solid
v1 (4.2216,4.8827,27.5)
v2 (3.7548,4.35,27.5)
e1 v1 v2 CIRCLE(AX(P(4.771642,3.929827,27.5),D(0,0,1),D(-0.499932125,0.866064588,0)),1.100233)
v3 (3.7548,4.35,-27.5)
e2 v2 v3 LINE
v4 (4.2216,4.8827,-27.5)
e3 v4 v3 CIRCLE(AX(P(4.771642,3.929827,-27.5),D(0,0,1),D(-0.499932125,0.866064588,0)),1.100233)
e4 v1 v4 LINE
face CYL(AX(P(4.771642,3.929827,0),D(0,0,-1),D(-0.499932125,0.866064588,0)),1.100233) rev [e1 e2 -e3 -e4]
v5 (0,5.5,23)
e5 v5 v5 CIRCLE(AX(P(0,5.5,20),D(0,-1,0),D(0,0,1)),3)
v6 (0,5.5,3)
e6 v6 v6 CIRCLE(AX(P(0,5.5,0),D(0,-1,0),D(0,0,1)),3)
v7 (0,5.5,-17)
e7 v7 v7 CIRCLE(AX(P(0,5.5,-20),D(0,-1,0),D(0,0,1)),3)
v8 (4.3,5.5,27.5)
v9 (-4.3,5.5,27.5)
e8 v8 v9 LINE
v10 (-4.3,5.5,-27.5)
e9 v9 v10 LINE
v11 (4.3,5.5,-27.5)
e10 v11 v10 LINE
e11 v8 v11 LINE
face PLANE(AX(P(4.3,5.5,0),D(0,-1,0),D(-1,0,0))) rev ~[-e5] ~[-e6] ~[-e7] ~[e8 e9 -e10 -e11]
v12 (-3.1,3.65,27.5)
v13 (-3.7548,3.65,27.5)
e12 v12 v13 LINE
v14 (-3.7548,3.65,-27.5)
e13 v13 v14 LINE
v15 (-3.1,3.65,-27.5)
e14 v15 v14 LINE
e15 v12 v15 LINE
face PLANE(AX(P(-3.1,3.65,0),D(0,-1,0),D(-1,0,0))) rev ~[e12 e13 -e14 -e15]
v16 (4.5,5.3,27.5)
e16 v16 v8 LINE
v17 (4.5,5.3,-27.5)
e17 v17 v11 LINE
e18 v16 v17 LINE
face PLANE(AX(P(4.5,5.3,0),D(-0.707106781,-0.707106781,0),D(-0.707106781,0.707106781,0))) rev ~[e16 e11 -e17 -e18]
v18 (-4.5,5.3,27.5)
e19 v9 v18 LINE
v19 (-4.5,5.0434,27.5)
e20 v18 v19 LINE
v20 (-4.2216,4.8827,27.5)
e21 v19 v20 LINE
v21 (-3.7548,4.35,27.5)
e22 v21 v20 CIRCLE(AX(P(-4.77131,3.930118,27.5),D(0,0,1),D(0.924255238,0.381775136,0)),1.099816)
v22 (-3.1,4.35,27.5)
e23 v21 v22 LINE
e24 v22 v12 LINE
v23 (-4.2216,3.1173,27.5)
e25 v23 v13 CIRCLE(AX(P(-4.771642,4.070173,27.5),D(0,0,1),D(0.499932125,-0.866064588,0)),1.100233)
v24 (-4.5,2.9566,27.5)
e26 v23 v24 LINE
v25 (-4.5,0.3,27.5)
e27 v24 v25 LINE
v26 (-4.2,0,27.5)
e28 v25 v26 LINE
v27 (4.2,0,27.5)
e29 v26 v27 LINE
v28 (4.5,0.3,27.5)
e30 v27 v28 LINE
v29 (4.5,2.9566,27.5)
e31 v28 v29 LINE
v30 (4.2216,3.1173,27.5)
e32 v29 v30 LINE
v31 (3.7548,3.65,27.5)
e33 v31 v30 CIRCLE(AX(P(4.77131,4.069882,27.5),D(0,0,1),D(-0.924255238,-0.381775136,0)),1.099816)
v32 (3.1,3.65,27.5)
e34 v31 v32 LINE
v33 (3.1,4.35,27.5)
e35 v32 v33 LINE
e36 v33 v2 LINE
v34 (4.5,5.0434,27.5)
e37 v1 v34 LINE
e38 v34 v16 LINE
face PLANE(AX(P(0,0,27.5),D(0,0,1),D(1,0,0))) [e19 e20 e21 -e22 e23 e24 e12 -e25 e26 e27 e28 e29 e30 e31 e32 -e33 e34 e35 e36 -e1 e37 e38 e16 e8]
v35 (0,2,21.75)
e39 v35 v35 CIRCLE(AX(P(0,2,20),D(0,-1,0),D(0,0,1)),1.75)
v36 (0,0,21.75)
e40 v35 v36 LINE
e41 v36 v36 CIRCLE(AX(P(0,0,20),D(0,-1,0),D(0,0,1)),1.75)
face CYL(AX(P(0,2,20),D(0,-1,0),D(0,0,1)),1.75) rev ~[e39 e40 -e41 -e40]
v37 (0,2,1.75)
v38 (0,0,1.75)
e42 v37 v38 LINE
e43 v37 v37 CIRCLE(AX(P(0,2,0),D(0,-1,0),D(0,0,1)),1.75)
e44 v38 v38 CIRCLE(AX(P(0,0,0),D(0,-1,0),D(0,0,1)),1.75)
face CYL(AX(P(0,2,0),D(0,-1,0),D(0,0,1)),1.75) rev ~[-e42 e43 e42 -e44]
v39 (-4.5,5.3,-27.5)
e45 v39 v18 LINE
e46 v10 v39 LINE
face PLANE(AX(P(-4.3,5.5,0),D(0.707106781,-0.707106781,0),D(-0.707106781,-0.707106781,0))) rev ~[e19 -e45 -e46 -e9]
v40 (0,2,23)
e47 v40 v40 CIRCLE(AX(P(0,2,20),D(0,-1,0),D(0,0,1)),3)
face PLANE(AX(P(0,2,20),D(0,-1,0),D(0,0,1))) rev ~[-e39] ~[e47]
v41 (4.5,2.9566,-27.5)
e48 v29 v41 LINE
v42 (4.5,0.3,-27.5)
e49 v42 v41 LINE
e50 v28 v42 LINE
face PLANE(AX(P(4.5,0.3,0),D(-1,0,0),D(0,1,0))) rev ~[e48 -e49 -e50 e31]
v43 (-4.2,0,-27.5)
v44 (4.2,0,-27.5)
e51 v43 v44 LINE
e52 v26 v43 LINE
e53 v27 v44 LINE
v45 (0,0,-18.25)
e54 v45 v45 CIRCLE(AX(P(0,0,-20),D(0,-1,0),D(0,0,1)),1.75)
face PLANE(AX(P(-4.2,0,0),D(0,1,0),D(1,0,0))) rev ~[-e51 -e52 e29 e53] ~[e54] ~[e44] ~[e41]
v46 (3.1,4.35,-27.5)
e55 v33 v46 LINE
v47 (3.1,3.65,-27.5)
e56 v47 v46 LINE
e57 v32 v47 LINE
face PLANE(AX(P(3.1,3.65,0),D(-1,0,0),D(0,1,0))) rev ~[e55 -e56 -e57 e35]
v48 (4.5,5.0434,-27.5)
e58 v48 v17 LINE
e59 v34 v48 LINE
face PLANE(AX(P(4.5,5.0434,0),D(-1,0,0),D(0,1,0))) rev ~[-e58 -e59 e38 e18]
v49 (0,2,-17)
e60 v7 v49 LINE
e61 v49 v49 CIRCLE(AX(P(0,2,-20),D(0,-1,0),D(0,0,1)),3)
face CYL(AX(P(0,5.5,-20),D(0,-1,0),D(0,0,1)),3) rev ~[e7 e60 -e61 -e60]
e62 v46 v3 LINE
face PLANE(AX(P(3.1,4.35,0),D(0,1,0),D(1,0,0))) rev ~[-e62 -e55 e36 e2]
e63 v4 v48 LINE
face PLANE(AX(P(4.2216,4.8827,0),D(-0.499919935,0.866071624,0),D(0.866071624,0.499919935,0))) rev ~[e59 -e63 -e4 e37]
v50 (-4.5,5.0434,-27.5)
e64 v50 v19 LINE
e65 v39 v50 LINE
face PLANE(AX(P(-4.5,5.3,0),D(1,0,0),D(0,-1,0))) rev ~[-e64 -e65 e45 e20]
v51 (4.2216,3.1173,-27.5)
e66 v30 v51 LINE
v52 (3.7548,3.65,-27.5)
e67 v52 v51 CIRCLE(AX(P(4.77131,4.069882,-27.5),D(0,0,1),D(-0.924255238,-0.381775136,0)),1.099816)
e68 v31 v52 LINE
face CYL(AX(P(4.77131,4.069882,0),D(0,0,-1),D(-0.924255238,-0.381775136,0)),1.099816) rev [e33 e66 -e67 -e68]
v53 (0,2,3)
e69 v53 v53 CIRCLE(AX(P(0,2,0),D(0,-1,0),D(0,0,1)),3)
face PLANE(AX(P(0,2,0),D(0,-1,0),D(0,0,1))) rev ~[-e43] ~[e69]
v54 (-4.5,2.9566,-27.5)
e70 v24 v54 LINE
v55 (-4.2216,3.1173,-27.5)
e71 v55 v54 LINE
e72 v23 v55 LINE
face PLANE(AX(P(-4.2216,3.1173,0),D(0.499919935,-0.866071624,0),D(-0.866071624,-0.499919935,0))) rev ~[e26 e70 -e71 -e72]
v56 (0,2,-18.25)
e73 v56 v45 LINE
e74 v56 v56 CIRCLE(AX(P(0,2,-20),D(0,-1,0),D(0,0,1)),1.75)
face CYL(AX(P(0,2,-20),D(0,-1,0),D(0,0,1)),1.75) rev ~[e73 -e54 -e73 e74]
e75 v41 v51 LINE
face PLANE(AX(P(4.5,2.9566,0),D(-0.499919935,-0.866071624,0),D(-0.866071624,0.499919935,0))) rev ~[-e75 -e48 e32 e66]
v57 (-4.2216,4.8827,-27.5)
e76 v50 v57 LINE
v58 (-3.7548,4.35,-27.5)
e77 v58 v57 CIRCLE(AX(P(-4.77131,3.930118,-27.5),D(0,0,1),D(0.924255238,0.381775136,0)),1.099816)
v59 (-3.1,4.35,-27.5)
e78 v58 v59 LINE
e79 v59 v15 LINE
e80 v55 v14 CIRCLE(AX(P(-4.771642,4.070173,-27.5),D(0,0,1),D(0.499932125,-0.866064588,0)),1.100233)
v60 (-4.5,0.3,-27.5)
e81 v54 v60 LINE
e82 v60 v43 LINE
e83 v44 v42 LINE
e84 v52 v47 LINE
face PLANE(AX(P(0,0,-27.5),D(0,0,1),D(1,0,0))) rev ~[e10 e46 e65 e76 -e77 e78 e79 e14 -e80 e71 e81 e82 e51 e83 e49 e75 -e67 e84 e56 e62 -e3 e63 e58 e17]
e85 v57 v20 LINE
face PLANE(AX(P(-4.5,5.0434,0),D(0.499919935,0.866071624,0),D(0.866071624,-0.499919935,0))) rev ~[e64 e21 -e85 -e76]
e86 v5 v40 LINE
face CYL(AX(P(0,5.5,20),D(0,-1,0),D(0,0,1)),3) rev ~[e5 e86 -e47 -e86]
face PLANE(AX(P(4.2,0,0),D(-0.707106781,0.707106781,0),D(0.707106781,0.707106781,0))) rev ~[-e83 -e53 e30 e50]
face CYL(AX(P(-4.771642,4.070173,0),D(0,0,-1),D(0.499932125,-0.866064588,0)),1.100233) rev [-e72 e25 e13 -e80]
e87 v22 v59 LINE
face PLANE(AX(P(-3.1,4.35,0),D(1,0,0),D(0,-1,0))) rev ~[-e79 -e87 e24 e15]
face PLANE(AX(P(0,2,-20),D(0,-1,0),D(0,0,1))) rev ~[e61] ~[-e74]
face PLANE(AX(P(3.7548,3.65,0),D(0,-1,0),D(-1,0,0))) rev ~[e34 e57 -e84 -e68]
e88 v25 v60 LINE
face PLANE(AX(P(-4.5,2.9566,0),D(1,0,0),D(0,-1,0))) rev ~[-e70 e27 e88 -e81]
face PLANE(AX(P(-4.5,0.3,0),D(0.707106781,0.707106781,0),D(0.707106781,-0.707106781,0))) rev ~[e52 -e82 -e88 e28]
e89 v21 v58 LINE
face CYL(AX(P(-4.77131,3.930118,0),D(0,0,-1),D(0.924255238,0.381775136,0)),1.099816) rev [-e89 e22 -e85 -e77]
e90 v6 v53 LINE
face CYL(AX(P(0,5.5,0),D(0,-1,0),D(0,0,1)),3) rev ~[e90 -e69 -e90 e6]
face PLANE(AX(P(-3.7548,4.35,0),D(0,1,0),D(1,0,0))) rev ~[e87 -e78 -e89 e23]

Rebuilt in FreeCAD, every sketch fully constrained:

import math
import FreeCAD as App
import Part
import Sketcher

V = App.Vector

doc = App.newDocument("Part")
body = doc.addObject("PartDesign::Body", "Body")

# Sketch on XY plane
sketch1 = doc.addObject("Sketcher::SketchObject", "Sketch")
body.addObject(sketch1)
sketch1.AttachmentSupport = (doc.XY_Plane, [""])
sketch1.MapMode = "FlatFace"
sketch1.addGeometry(Part.LineSegment(V(-4.3, 5.5, 0), V(-4.5, 5.3, 0)), False)
sketch1.addGeometry(Part.LineSegment(V(-4.5, 5.3, 0), V(-4.5, 5.0434, 0)), False)
sketch1.addGeometry(Part.LineSegment(V(-4.5, 5.0434, 0), V(-4.2216, 4.8827, 0)), False)
sketch1.addGeometry(Part.ArcOfCircle(Part.Circle(V(-4.7715, 3.93, 0), V(0, 0, 1), 1.100036), math.radians(22.445579), math.radians(60.006387)), False)
sketch1.addGeometry(Part.LineSegment(V(-3.7548, 4.35, 0), V(-3.1, 4.35, 0)), False)
sketch1.addGeometry(Part.LineSegment(V(-3.1, 4.35, 0), V(-3.1, 3.65, 0)), False)
sketch1.addGeometry(Part.LineSegment(V(-3.1, 3.65, 0), V(-3.7548, 3.65, 0)), False)
sketch1.addGeometry(Part.ArcOfCircle(Part.Circle(V(-4.7715, 4.07, 0), V(0, 0, 1), 1.100012), math.radians(-60.006387), math.radians(-22.445579)), False)
sketch1.addGeometry(Part.LineSegment(V(-4.2216, 3.1173, 0), V(-4.5, 2.9566, 0)), False)
sketch1.addGeometry(Part.LineSegment(V(-4.5, 2.9566, 0), V(-4.5, 0.3, 0)), False)
sketch1.addGeometry(Part.LineSegment(V(-4.5, 0.3, 0), V(-4.2, 0, 0)), False)
sketch1.addGeometry(Part.LineSegment(V(-4.2, 0, 0), V(4.2, 0, 0)), False)
sketch1.addGeometry(Part.LineSegment(V(4.2, 0, 0), V(4.5, 0.3, 0)), False)
sketch1.addGeometry(Part.LineSegment(V(4.5, 0.3, 0), V(4.5, 2.9566, 0)), False)
sketch1.addGeometry(Part.LineSegment(V(4.5, 2.9566, 0), V(4.2216, 3.1173, 0)), False)
sketch1.addGeometry(Part.ArcOfCircle(Part.Circle(V(4.7715, 4.07, 0), V(0, 0, 1), 1.100036), math.radians(-157.554421), math.radians(-119.993613)), False)
sketch1.addGeometry(Part.LineSegment(V(3.7548, 3.65, 0), V(3.1, 3.65, 0)), False)
sketch1.addGeometry(Part.LineSegment(V(3.1, 3.65, 0), V(3.1, 4.35, 0)), False)
sketch1.addGeometry(Part.LineSegment(V(3.1, 4.35, 0), V(3.7548, 4.35, 0)), False)
sketch1.addGeometry(Part.ArcOfCircle(Part.Circle(V(4.7715, 3.93, 0), V(0, 0, 1), 1.100012), math.radians(119.993613), math.radians(157.554421)), False)
sketch1.addGeometry(Part.LineSegment(V(4.2216, 4.8827, 0), V(4.5, 5.0434, 0)), False)
sketch1.addGeometry(Part.LineSegment(V(4.5, 5.0434, 0), V(4.5, 5.3, 0)), False)
sketch1.addGeometry(Part.LineSegment(V(4.5, 5.3, 0), V(4.3, 5.5, 0)), False)
sketch1.addGeometry(Part.LineSegment(V(4.3, 5.5, 0), V(-4.3, 5.5, 0)), False)
sketch1.addConstraint(Sketcher.Constraint("Coincident", 0, 2, 1, 1))
sketch1.addConstraint(Sketcher.Constraint("Coincident", 1, 2, 2, 1))
sketch1.addConstraint(Sketcher.Constraint("Tangent", 2, 2, 3, 2))
sketch1.addConstraint(Sketcher.Constraint("Coincident", 3, 1, 4, 1))
sketch1.addConstraint(Sketcher.Constraint("Coincident", 4, 2, 5, 1))
sketch1.addConstraint(Sketcher.Constraint("Coincident", 5, 2, 6, 1))
sketch1.addConstraint(Sketcher.Constraint("Coincident", 6, 2, 7, 2))
sketch1.addConstraint(Sketcher.Constraint("Tangent", 7, 1, 8, 1))
sketch1.addConstraint(Sketcher.Constraint("Coincident", 8, 2, 9, 1))
sketch1.addConstraint(Sketcher.Constraint("Coincident", 9, 2, 10, 1))
sketch1.addConstraint(Sketcher.Constraint("Coincident", 10, 2, 11, 1))
sketch1.addConstraint(Sketcher.Constraint("Coincident", 11, 2, 12, 1))
sketch1.addConstraint(Sketcher.Constraint("Coincident", 12, 2, 13, 1))
sketch1.addConstraint(Sketcher.Constraint("Coincident", 13, 2, 14, 1))
sketch1.addConstraint(Sketcher.Constraint("Tangent", 14, 2, 15, 2))
sketch1.addConstraint(Sketcher.Constraint("Coincident", 15, 1, 16, 1))
sketch1.addConstraint(Sketcher.Constraint("Coincident", 16, 2, 17, 1))
sketch1.addConstraint(Sketcher.Constraint("Coincident", 17, 2, 18, 1))
sketch1.addConstraint(Sketcher.Constraint("Coincident", 18, 2, 19, 2))
sketch1.addConstraint(Sketcher.Constraint("Tangent", 19, 1, 20, 1))
sketch1.addConstraint(Sketcher.Constraint("Coincident", 20, 2, 21, 1))
sketch1.addConstraint(Sketcher.Constraint("Coincident", 21, 2, 22, 1))
sketch1.addConstraint(Sketcher.Constraint("Coincident", 22, 2, 23, 1))
sketch1.addConstraint(Sketcher.Constraint("Coincident", 23, 2, 0, 1))
sketch1.addConstraint(Sketcher.Constraint("Vertical", 1))
sketch1.addConstraint(Sketcher.Constraint("Horizontal", 4))
sketch1.addConstraint(Sketcher.Constraint("Vertical", 5))
sketch1.addConstraint(Sketcher.Constraint("Horizontal", 6))
sketch1.addConstraint(Sketcher.Constraint("Vertical", 9))
sketch1.addConstraint(Sketcher.Constraint("Horizontal", 11))
sketch1.addConstraint(Sketcher.Constraint("Vertical", 13))
sketch1.addConstraint(Sketcher.Constraint("Horizontal", 16))
sketch1.addConstraint(Sketcher.Constraint("Vertical", 17))
sketch1.addConstraint(Sketcher.Constraint("Horizontal", 18))
sketch1.addConstraint(Sketcher.Constraint("Vertical", 21))
sketch1.addConstraint(Sketcher.Constraint("Horizontal", 23))
sketch1.addConstraint(Sketcher.Constraint("Equal", 3, 7))
sketch1.addConstraint(Sketcher.Constraint("Equal", 7, 15))
sketch1.addConstraint(Sketcher.Constraint("Equal", 15, 19))
sketch1.addConstraint(Sketcher.Constraint("Symmetric", 10, 2, 11, 2, -1, 1))
sketch1.addConstraint(Sketcher.Constraint("Symmetric", 7, 3, 15, 3, -2))
sketch1.addConstraint(Sketcher.Constraint("Symmetric", 3, 3, 19, 3, -2))
sketch1.addConstraint(Sketcher.Constraint("Symmetric", 9, 2, 12, 2, -2))
sketch1.addConstraint(Sketcher.Constraint("Symmetric", 5, 2, 16, 2, -2))
sketch1.addConstraint(Sketcher.Constraint("Symmetric", 1, 2, 20, 2, -2))
sketch1.addConstraint(Sketcher.Constraint("Perpendicular", 0, 10))
sketch1.addConstraint(Sketcher.Constraint("Perpendicular", 10, 12))
sketch1.addConstraint(Sketcher.Constraint("Parallel", 2, 14))
sketch1.addConstraint(Sketcher.Constraint("Parallel", 8, 20))
sketch1.addConstraint(Sketcher.Constraint("Perpendicular", 12, 22))
sketch1.addConstraint(Sketcher.Constraint("Horizontal", 4, 2, 17, 2))
sketch1.addConstraint(Sketcher.Constraint("Horizontal", 0, 2, 21, 2))
sketch1.addConstraint(Sketcher.Constraint("Vertical", 3, 3, 7, 3))
sketch1.addConstraint(Sketcher.Constraint("Vertical", 3, 1, 6, 2))
sketch1.addConstraint(Sketcher.Constraint("Vertical", 1, 2, 8, 2))
sketch1.addConstraint(Sketcher.Constraint("Radius", 3, 1.1))
sketch1.addConstraint(Sketcher.Constraint("DistanceX", 11, 1, 11, 2, 8.4))
sketch1.addConstraint(Sketcher.Constraint("DistanceX", 23, 2, 23, 1, 8.6))
sketch1.addConstraint(Sketcher.Constraint("DistanceY", 5, 2, 5, 1, 0.7))
sketch1.addConstraint(Sketcher.Constraint("DistanceX", 0, 2, -1, 1, 4.5))
sketch1.addConstraint(Sketcher.Constraint("DistanceY", -1, 1, 0, 2, 5.3))
sketch1.addConstraint(Sketcher.Constraint("DistanceX", 4, 2, -1, 1, 3.1))
sketch1.addConstraint(Sketcher.Constraint("DistanceY", -1, 1, 3, 3, 3.93))
sketch1.addConstraint(Sketcher.Constraint("DistanceY", -1, 1, 7, 3, 4.07))
sketch1.addConstraint(Sketcher.Constraint("DistanceX", 7, 3, 2, 2, 0.55))
sketch1.addConstraint(Sketcher.Constraint("DistanceX", 4, 1, 4, 2, 0.6548))
pad1 = doc.addObject("PartDesign::Pad", "Pad")
body.addObject(pad1)
pad1.Profile = sketch1
pad1.Length = 55
pad1.Midplane = True

# Sketch on XZ plane
sketch2 = doc.addObject("Sketcher::SketchObject", "Sketch001")
body.addObject(sketch2)
sketch2.AttachmentSupport = (doc.XZ_Plane, [""])
sketch2.MapMode = "FlatFace"
sketch2.AttachmentOffset = App.Placement(V(0, 0, -5.5), App.Rotation())
sketch2.addGeometry(Part.Circle(V(0, -20, 0), V(0, 0, 1), 1.75), False)
sketch2.addConstraint(Sketcher.Constraint("PointOnObject", 0, 3, -2))
sketch2.addConstraint(Sketcher.Constraint("Diameter", 0, 3.5))
sketch2.addConstraint(Sketcher.Constraint("DistanceY", 0, 3, -1, 1, 20.0))
doc.recompute()
hole = doc.addObject("PartDesign::Hole", "Hole")
body.addObject(hole)
hole.Profile = sketch2
hole.ThreadType = "None"
hole.Diameter = 3.5
hole.DepthType = "Dimension"
hole.Depth = 5.5
hole.DrillPoint = "Flat"
hole.HoleCutType = "Counterbore"
hole.HoleCutDiameter = 6
hole.HoleCutDepth = 3.5
hole.Reversed = True
doc.recompute()

linearpattern = doc.addObject("PartDesign::LinearPattern", "LinearPattern")
body.addObject(linearpattern)
linearpattern.Originals = [hole]
linearpattern.Direction = (doc.Z_Axis, [""])
linearpattern.Mode = "offset"
linearpattern.Offset = 20
linearpattern.Occurrences = 3
body.Tip = linearpattern

doc.recompute()
